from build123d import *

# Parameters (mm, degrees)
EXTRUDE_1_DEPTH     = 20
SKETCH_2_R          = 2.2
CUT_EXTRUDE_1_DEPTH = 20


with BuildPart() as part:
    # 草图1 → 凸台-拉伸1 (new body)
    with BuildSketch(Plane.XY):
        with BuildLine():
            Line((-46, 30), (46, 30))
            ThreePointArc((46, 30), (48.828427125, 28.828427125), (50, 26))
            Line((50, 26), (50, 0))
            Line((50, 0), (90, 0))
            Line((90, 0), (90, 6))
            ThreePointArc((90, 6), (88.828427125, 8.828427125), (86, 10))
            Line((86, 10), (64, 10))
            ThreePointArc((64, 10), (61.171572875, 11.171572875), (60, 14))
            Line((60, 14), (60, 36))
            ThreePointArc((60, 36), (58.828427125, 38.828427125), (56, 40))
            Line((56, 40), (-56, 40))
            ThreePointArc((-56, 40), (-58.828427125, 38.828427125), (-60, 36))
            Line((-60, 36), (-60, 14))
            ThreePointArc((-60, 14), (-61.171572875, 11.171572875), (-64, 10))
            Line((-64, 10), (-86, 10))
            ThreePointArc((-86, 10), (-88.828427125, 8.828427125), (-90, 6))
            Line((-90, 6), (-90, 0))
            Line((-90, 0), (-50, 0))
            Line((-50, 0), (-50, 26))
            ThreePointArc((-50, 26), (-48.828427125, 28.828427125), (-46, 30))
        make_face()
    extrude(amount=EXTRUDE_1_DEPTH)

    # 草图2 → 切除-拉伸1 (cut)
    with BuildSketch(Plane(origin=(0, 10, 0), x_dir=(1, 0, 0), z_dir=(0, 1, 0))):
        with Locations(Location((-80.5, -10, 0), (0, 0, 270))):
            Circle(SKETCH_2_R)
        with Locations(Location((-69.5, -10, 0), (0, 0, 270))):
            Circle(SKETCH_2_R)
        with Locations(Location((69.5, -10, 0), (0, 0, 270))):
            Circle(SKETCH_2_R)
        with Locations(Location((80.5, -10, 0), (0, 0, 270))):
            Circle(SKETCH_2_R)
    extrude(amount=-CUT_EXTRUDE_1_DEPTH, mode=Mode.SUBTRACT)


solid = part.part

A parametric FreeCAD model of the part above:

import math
import FreeCAD as App
import Part
import Sketcher
Q = App.Units.Quantity

doc = App.newDocument("Part")
body = doc.addObject("PartDesign::Body", "Body")

sketch1 = body.newObject("Sketcher::SketchObject", "Sketch")
sketch1.AttachmentSupport = (doc.getObject("XY_Plane"), [""])
sketch1.MapMode = "FlatFace"
sketch1.addGeometry(Part.LineSegment(App.Vector(-46, 30, 0), App.Vector(46, 30, 0)), False)
sketch1.addGeometry(Part.ArcOfCircle(Part.Circle(App.Vector(46, 26, 0), App.Vector(0, 0, 1), 4), math.radians(0), math.radians(90)), False)
sketch1.addGeometry(Part.LineSegment(App.Vector(50, 26, 0), App.Vector(50, 0, 0)), False)
sketch1.addGeometry(Part.LineSegment(App.Vector(50, 0, 0), App.Vector(90, 0, 0)), False)
sketch1.addGeometry(Part.LineSegment(App.Vector(90, 0, 0), App.Vector(90, 6, 0)), False)
sketch1.addGeometry(Part.ArcOfCircle(Part.Circle(App.Vector(86, 6, 0), App.Vector(0, 0, 1), 4), math.radians(0), math.radians(90)), False)
sketch1.addGeometry(Part.LineSegment(App.Vector(86, 10, 0), App.Vector(64, 10, 0)), False)
sketch1.addGeometry(Part.ArcOfCircle(Part.Circle(App.Vector(64, 14, 0), App.Vector(0, 0, 1), 4), math.radians(180), math.radians(270)), False)
sketch1.addGeometry(Part.LineSegment(App.Vector(60, 14, 0), App.Vector(60, 36, 0)), False)
sketch1.addGeometry(Part.ArcOfCircle(Part.Circle(App.Vector(56, 36, 0), App.Vector(0, 0, 1), 4), math.radians(0), math.radians(90)), False)
sketch1.addGeometry(Part.LineSegment(App.Vector(56, 40, 0), App.Vector(-56, 40, 0)), False)
sketch1.addGeometry(Part.ArcOfCircle(Part.Circle(App.Vector(-56, 36, 0), App.Vector(0, 0, 1), 4), math.radians(90), math.radians(180)), False)
sketch1.addGeometry(Part.LineSegment(App.Vector(-60, 36, 0), App.Vector(-60, 14, 0)), False)
sketch1.addGeometry(Part.ArcOfCircle(Part.Circle(App.Vector(-64, 14, 0), App.Vector(0, 0, 1), 4), math.radians(-90), math.radians(0)), False)
sketch1.addGeometry(Part.LineSegment(App.Vector(-64, 10, 0), App.Vector(-86, 10, 0)), False)
sketch1.addGeometry(Part.ArcOfCircle(Part.Circle(App.Vector(-86, 6, 0), App.Vector(0, 0, 1), 4), math.radians(90), math.radians(180)), False)
sketch1.addGeometry(Part.LineSegment(App.Vector(-90, 6, 0), App.Vector(-90, 0, 0)), False)
sketch1.addGeometry(Part.LineSegment(App.Vector(-90, 0, 0), App.Vector(-50, 0, 0)), False)
sketch1.addGeometry(Part.LineSegment(App.Vector(-50, 0, 0), App.Vector(-50, 26, 0)), False)
sketch1.addGeometry(Part.ArcOfCircle(Part.Circle(App.Vector(-46, 26, 0), App.Vector(0, 0, 1), 4), math.radians(90), math.radians(180)), False)
sketch1.addConstraint(Sketcher.Constraint("Tangent", 0, 2, 1, 2))
sketch1.addConstraint(Sketcher.Constraint("Tangent", 1, 1, 2, 1))
sketch1.addConstraint(Sketcher.Constraint("Coincident", 2, 2, 3, 1))
sketch1.addConstraint(Sketcher.Constraint("Coincident", 3, 2, 4, 1))
sketch1.addConstraint(Sketcher.Constraint("Tangent", 4, 2, 5, 1))
sketch1.addConstraint(Sketcher.Constraint("Tangent", 5, 2, 6, 1))
sketch1.addConstraint(Sketcher.Constraint("Tangent", 6, 2, 7, 2))
sketch1.addConstraint(Sketcher.Constraint("Tangent", 7, 1, 8, 1))
sketch1.addConstraint(Sketcher.Constraint("Tangent", 8, 2, 9, 1))
sketch1.addConstraint(Sketcher.Constraint("Tangent", 9, 2, 10, 1))
sketch1.addConstraint(Sketcher.Constraint("Tangent", 10, 2, 11, 1))
sketch1.addConstraint(Sketcher.Constraint("Tangent", 11, 2, 12, 1))
sketch1.addConstraint(Sketcher.Constraint("Tangent", 12, 2, 13, 2))
sketch1.addConstraint(Sketcher.Constraint("Tangent", 13, 1, 14, 1))
sketch1.addConstraint(Sketcher.Constraint("Tangent", 14, 2, 15, 1))
sketch1.addConstraint(Sketcher.Constraint("Tangent", 15, 2, 16, 1))
sketch1.addConstraint(Sketcher.Constraint("Coincident", 16, 2, 17, 1))
sketch1.addConstraint(Sketcher.Constraint("Coincident", 17, 2, 18, 1))
sketch1.addConstraint(Sketcher.Constraint("Tangent", 18, 2, 19, 2))
sketch1.addConstraint(Sketcher.Constraint("Tangent", 19, 1, 0, 1))
sketch1.addConstraint(Sketcher.Constraint("Horizontal", 0))
sketch1.addConstraint(Sketcher.Constraint("Vertical", 2))
sketch1.addConstraint(Sketcher.Constraint("Horizontal", 3))
sketch1.addConstraint(Sketcher.Constraint("Vertical", 4))
sketch1.addConstraint(Sketcher.Constraint("Horizontal", 6))
sketch1.addConstraint(Sketcher.Constraint("Vertical", 8))
sketch1.addConstraint(Sketcher.Constraint("Horizontal", 10))
sketch1.addConstraint(Sketcher.Constraint("Vertical", 12))
sketch1.addConstraint(Sketcher.Constraint("Horizontal", 14))
sketch1.addConstraint(Sketcher.Constraint("Vertical", 16))
sketch1.addConstraint(Sketcher.Constraint("Horizontal", 17))
sketch1.addConstraint(Sketcher.Constraint("Vertical", 18))
sketch1.addConstraint(Sketcher.Constraint("Equal", 1, 5))
sketch1.addConstraint(Sketcher.Constraint("Equal", 5, 7))
sketch1.addConstraint(Sketcher.Constraint("Equal", 7, 9))
sketch1.addConstraint(Sketcher.Constraint("Equal", 9, 11))
sketch1.addConstraint(Sketcher.Constraint("Equal", 11, 13))
sketch1.addConstraint(Sketcher.Constraint("Equal", 13, 15))
sketch1.addConstraint(Sketcher.Constraint("Equal", 15, 19))
sketch1.addConstraint(Sketcher.Constraint("Symmetric", 3, 2, 16, 2, -1, 1))
sketch1.addConstraint(Sketcher.Constraint("Symmetric", 7, 3, 13, 3, -2))
sketch1.addConstraint(Sketcher.Constraint("Symmetric", 2, 2, 17, 2, -2))
sketch1.addConstraint(Sketcher.Constraint("Equal", 14, 8))
sketch1.addConstraint(Sketcher.Constraint("Radius", 1, Q("4 mm")))
sketch1.addConstraint(Sketcher.Constraint("DistanceX", 0, 1, 0, 2, Q("92 mm")))
sketch1.addConstraint(Sketcher.Constraint("DistanceX", 3, 1, 3, 2, Q("40 mm")))
sketch1.addConstraint(Sketcher.Constraint("DistanceX", 6, 2, 6, 1, Q("22 mm")))
sketch1.addConstraint(Sketcher.Constraint("DistanceY", 2, 2, 2, 1, Q("26 mm")))
sketch1.addConstraint(Sketcher.Constraint("DistanceY", 4, 1, 4, 2, Q("6 mm")))
pad1 = body.newObject("PartDesign::Pad", "Pad")
pad1.Profile = sketch1
pad1.Length = 20

sketch2 = body.newObject("Sketcher::SketchObject", "Sketch001")
sketch2.AttachmentSupport = (doc.getObject("XZ_Plane"), [""])
sketch2.MapMode = "FlatFace"
sketch2.AttachmentOffset = App.Placement(App.Vector(0, 0, -10), App.Rotation())
sketch2.addGeometry(Part.Circle(App.Vector(-80.5, 10, 0), App.Vector(0, 0, 1), 2.2), False)
sketch2.addGeometry(Part.Circle(App.Vector(-69.5, 10, 0), App.Vector(0, 0, 1), 2.2), False)
sketch2.addGeometry(Part.Circle(App.Vector(69.5, 10, 0), App.Vector(0, 0, 1), 2.2), False)
sketch2.addGeometry(Part.Circle(App.Vector(80.5, 10, 0), App.Vector(0, 0, 1), 2.2), False)
sketch2.addConstraint(Sketcher.Constraint("Equal", 0, 1))
sketch2.addConstraint(Sketcher.Constraint("Equal", 1, 2))
sketch2.addConstraint(Sketcher.Constraint("Equal", 2, 3))
sketch2.addConstraint(Sketcher.Constraint("Symmetric", 1, 3, 2, 3, -2))
sketch2.addConstraint(Sketcher.Constraint("Symmetric", 0, 3, 3, 3, -2))
sketch2.addConstraint(Sketcher.Constraint("Horizontal", 0, 3, 1, 3))
sketch2.addConstraint(Sketcher.Constraint("Diameter", 0, Q("4.4 mm")))
sketch2.addConstraint(Sketcher.Constraint("DistanceY", -1, 1, 0, 3, Q("10 mm")))
sketch2.addConstraint(Sketcher.Constraint("DistanceX", 0, 3, 1, 3, Q("11 mm")))
sketch2.addConstraint(Sketcher.Constraint("DistanceX", 1, 3, 2, 3, Q("139 mm")))
pocket1 = body.newObject("PartDesign::Pocket", "Pocket")
pocket1.Profile = sketch2
pocket1.Length = 20
pocket1.Reversed = True

doc.recompute()
